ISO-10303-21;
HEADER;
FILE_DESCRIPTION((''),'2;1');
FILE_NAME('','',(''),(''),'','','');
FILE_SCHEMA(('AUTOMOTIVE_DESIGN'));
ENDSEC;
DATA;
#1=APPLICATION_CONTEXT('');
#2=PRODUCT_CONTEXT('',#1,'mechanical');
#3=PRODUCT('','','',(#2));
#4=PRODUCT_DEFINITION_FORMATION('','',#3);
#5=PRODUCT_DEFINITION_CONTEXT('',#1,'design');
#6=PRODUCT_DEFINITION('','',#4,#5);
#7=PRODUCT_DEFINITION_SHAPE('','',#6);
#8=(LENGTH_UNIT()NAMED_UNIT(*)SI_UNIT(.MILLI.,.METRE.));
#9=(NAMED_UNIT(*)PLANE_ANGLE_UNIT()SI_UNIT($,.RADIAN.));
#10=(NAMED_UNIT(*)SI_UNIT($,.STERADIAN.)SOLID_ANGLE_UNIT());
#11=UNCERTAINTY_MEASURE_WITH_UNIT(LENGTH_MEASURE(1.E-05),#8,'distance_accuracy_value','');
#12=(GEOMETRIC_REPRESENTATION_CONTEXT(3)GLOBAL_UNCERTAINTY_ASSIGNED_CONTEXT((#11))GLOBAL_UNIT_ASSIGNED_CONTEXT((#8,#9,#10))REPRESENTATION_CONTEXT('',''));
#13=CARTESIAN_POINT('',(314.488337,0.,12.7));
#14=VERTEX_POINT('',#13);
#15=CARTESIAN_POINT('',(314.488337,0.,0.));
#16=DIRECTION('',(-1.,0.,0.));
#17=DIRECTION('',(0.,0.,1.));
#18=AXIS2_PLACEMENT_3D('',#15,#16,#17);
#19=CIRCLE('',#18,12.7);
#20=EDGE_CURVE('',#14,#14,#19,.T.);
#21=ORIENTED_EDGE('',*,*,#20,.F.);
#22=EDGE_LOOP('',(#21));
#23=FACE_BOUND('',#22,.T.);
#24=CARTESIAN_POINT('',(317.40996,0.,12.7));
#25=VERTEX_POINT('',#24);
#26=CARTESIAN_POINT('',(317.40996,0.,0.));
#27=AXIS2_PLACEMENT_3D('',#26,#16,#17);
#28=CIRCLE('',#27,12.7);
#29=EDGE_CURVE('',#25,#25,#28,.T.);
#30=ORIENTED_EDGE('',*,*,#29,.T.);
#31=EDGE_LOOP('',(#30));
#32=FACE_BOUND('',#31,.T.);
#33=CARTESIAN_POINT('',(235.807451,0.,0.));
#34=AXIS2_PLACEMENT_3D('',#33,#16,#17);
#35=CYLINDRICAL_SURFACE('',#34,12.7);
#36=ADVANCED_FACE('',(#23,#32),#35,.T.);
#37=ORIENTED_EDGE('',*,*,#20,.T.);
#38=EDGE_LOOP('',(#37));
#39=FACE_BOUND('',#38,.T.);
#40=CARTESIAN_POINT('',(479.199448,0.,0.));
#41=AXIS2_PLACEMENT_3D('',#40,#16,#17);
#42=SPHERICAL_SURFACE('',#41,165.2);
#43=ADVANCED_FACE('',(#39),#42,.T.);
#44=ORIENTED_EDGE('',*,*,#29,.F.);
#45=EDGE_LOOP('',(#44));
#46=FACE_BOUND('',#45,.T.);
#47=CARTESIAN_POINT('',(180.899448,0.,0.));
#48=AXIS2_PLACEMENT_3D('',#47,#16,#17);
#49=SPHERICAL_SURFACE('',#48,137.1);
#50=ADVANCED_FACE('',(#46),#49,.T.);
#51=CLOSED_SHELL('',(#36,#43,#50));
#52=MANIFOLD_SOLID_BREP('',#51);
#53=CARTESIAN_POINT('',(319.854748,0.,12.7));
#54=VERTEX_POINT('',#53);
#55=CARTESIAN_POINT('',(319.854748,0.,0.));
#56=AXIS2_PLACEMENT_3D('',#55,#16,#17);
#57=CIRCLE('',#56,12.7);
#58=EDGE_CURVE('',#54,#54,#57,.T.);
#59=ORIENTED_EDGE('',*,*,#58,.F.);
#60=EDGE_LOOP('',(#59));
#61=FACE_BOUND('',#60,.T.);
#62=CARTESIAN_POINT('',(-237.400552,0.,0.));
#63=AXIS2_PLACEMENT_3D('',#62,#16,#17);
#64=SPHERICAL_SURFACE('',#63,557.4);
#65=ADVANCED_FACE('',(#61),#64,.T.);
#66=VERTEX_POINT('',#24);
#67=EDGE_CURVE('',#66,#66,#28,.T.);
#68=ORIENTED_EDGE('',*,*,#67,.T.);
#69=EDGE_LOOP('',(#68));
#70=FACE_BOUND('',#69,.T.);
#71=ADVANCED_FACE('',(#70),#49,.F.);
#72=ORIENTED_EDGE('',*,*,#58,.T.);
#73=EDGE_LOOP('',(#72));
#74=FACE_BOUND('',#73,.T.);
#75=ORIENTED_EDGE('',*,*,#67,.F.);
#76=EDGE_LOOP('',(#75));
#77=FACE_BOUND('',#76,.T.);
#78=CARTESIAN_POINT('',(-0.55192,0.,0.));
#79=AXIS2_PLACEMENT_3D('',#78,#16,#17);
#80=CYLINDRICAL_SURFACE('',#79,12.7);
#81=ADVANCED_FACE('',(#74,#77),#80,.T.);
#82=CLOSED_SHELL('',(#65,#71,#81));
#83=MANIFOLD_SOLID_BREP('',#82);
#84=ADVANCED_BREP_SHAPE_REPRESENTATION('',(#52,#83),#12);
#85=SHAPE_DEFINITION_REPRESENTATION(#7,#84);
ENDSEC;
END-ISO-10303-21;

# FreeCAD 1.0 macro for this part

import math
import FreeCAD as App
import Part
import Sketcher
Q = App.Units.Quantity

doc = App.newDocument("Part")
body = doc.addObject("PartDesign::Body", "Body")

# Sketch on XZ plane
sketch1 = body.newObject("Sketcher::SketchObject", "Sketch")
sketch1.AttachmentSupport = (doc.getObject("XZ_Plane"), [""])
sketch1.MapMode = "FlatFace"
sketch1.addGeometry([
    Part.ArcOfCircle(Part.Circle(App.Vector(479.2, 0, 0), App.Vector(0, 0, 1), 165.2), math.radians(180), math.radians(184.41)),
    Part.LineSegment(App.Vector(314, 0, 0), App.Vector(318, 0, 0)),
    Part.ArcOfCircle(Part.Circle(App.Vector(180.9, 0, 0), App.Vector(0, 0, 1), 137.1), math.radians(-5.32), math.radians(0)),
    Part.LineSegment(App.Vector(317.4, -12.7, 0), App.Vector(314.5, -12.7, 0)),
], False)
sketch1.addConstraint([
    Sketcher.Constraint("Coincident", 0, 1, 1, 1),
    Sketcher.Constraint("Coincident", 1, 2, 2, 2),
    Sketcher.Constraint("Coincident", 2, 1, 3, 1),
    Sketcher.Constraint("Coincident", 3, 2, 0, 2),
    Sketcher.Constraint("Horizontal", 1),
    Sketcher.Constraint("Horizontal", 3),
    Sketcher.Constraint("PointOnObject", 0, 3, -1),
    Sketcher.Constraint("PointOnObject", 2, 3, -1),
    Sketcher.Constraint("PointOnObject", 0, 1, -1),
    Sketcher.Constraint("Radius", 0, Q("165.2 mm")),
    Sketcher.Constraint("Radius", 2, Q("137.1 mm")),
    Sketcher.Constraint("DistanceX", 1, 1, 1, 2, Q("4 mm")),
    Sketcher.Constraint("DistanceY", 2, 1, -1, 1, Q("12.7 mm")),
    Sketcher.Constraint("DistanceX", -1, 1, 2, 1, Q("317.40996 mm")),
])
revolution = body.newObject("PartDesign::Revolution", "Revolution")
revolution.Profile = sketch1
revolution.ReferenceAxis = (sketch1, ["H_Axis"])
revolution.Angle = 360
body2 = doc.addObject("PartDesign::Body", "Body001")

# Sketch on XZ plane
sketch2 = body2.newObject("Sketcher::SketchObject", "Sketch001")
sketch2.AttachmentSupport = (doc.getObject("XZ_Plane001"), [""])
sketch2.MapMode = "FlatFace"
sketch2.addGeometry([
    Part.LineSegment(App.Vector(319.9, -12.7, 0), App.Vector(317.4, -12.7, 0)),
    Part.ArcOfCircle(Part.Circle(App.Vector(180.9, 0, 0), App.Vector(0, 0, 1), 137.1), math.radians(-5.32), math.radians(0)),
    Part.LineSegment(App.Vector(318, 0, 0), App.Vector(320, 0, 0)),
    Part.ArcOfCircle(Part.Circle(App.Vector(-237.4, 0, 0), App.Vector(0, 0, 1), 557.4), math.radians(-1.31), math.radians(0)),
], False)
sketch2.addConstraint([
    Sketcher.Constraint("Coincident", 0, 2, 1, 1),
    Sketcher.Constraint("Coincident", 1, 2, 2, 1),
    Sketcher.Constraint("Coincident", 2, 2, 3, 2),
    Sketcher.Constraint("Coincident", 3, 1, 0, 1),
    Sketcher.Constraint("Horizontal", 0),
    Sketcher.Constraint("Horizontal", 2),
    Sketcher.Constraint("PointOnObject", 1, 3, -1),
    Sketcher.Constraint("PointOnObject", 3, 3, -1),
    Sketcher.Constraint("PointOnObject", 1, 2, -1),
    Sketcher.Constraint("Radius", 1, Q("137.1 mm")),
    Sketcher.Constraint("DistanceX", 2, 1, 2, 2, Q("2 mm")),
    Sketcher.Constraint("DistanceY", 0, 2, -1, 1, Q("12.7 mm")),
    Sketcher.Constraint("Radius", 3, Q("557.399993 mm")),
    Sketcher.Constraint("DistanceX", -1, 1, 0, 2, Q("317.40996 mm")),
])
revolution2 = body2.newObject("PartDesign::Revolution", "Revolution001")
revolution2.Profile = sketch2
revolution2.ReferenceAxis = (sketch2, ["H_Axis"])
revolution2.Angle = 360

doc.recompute()
